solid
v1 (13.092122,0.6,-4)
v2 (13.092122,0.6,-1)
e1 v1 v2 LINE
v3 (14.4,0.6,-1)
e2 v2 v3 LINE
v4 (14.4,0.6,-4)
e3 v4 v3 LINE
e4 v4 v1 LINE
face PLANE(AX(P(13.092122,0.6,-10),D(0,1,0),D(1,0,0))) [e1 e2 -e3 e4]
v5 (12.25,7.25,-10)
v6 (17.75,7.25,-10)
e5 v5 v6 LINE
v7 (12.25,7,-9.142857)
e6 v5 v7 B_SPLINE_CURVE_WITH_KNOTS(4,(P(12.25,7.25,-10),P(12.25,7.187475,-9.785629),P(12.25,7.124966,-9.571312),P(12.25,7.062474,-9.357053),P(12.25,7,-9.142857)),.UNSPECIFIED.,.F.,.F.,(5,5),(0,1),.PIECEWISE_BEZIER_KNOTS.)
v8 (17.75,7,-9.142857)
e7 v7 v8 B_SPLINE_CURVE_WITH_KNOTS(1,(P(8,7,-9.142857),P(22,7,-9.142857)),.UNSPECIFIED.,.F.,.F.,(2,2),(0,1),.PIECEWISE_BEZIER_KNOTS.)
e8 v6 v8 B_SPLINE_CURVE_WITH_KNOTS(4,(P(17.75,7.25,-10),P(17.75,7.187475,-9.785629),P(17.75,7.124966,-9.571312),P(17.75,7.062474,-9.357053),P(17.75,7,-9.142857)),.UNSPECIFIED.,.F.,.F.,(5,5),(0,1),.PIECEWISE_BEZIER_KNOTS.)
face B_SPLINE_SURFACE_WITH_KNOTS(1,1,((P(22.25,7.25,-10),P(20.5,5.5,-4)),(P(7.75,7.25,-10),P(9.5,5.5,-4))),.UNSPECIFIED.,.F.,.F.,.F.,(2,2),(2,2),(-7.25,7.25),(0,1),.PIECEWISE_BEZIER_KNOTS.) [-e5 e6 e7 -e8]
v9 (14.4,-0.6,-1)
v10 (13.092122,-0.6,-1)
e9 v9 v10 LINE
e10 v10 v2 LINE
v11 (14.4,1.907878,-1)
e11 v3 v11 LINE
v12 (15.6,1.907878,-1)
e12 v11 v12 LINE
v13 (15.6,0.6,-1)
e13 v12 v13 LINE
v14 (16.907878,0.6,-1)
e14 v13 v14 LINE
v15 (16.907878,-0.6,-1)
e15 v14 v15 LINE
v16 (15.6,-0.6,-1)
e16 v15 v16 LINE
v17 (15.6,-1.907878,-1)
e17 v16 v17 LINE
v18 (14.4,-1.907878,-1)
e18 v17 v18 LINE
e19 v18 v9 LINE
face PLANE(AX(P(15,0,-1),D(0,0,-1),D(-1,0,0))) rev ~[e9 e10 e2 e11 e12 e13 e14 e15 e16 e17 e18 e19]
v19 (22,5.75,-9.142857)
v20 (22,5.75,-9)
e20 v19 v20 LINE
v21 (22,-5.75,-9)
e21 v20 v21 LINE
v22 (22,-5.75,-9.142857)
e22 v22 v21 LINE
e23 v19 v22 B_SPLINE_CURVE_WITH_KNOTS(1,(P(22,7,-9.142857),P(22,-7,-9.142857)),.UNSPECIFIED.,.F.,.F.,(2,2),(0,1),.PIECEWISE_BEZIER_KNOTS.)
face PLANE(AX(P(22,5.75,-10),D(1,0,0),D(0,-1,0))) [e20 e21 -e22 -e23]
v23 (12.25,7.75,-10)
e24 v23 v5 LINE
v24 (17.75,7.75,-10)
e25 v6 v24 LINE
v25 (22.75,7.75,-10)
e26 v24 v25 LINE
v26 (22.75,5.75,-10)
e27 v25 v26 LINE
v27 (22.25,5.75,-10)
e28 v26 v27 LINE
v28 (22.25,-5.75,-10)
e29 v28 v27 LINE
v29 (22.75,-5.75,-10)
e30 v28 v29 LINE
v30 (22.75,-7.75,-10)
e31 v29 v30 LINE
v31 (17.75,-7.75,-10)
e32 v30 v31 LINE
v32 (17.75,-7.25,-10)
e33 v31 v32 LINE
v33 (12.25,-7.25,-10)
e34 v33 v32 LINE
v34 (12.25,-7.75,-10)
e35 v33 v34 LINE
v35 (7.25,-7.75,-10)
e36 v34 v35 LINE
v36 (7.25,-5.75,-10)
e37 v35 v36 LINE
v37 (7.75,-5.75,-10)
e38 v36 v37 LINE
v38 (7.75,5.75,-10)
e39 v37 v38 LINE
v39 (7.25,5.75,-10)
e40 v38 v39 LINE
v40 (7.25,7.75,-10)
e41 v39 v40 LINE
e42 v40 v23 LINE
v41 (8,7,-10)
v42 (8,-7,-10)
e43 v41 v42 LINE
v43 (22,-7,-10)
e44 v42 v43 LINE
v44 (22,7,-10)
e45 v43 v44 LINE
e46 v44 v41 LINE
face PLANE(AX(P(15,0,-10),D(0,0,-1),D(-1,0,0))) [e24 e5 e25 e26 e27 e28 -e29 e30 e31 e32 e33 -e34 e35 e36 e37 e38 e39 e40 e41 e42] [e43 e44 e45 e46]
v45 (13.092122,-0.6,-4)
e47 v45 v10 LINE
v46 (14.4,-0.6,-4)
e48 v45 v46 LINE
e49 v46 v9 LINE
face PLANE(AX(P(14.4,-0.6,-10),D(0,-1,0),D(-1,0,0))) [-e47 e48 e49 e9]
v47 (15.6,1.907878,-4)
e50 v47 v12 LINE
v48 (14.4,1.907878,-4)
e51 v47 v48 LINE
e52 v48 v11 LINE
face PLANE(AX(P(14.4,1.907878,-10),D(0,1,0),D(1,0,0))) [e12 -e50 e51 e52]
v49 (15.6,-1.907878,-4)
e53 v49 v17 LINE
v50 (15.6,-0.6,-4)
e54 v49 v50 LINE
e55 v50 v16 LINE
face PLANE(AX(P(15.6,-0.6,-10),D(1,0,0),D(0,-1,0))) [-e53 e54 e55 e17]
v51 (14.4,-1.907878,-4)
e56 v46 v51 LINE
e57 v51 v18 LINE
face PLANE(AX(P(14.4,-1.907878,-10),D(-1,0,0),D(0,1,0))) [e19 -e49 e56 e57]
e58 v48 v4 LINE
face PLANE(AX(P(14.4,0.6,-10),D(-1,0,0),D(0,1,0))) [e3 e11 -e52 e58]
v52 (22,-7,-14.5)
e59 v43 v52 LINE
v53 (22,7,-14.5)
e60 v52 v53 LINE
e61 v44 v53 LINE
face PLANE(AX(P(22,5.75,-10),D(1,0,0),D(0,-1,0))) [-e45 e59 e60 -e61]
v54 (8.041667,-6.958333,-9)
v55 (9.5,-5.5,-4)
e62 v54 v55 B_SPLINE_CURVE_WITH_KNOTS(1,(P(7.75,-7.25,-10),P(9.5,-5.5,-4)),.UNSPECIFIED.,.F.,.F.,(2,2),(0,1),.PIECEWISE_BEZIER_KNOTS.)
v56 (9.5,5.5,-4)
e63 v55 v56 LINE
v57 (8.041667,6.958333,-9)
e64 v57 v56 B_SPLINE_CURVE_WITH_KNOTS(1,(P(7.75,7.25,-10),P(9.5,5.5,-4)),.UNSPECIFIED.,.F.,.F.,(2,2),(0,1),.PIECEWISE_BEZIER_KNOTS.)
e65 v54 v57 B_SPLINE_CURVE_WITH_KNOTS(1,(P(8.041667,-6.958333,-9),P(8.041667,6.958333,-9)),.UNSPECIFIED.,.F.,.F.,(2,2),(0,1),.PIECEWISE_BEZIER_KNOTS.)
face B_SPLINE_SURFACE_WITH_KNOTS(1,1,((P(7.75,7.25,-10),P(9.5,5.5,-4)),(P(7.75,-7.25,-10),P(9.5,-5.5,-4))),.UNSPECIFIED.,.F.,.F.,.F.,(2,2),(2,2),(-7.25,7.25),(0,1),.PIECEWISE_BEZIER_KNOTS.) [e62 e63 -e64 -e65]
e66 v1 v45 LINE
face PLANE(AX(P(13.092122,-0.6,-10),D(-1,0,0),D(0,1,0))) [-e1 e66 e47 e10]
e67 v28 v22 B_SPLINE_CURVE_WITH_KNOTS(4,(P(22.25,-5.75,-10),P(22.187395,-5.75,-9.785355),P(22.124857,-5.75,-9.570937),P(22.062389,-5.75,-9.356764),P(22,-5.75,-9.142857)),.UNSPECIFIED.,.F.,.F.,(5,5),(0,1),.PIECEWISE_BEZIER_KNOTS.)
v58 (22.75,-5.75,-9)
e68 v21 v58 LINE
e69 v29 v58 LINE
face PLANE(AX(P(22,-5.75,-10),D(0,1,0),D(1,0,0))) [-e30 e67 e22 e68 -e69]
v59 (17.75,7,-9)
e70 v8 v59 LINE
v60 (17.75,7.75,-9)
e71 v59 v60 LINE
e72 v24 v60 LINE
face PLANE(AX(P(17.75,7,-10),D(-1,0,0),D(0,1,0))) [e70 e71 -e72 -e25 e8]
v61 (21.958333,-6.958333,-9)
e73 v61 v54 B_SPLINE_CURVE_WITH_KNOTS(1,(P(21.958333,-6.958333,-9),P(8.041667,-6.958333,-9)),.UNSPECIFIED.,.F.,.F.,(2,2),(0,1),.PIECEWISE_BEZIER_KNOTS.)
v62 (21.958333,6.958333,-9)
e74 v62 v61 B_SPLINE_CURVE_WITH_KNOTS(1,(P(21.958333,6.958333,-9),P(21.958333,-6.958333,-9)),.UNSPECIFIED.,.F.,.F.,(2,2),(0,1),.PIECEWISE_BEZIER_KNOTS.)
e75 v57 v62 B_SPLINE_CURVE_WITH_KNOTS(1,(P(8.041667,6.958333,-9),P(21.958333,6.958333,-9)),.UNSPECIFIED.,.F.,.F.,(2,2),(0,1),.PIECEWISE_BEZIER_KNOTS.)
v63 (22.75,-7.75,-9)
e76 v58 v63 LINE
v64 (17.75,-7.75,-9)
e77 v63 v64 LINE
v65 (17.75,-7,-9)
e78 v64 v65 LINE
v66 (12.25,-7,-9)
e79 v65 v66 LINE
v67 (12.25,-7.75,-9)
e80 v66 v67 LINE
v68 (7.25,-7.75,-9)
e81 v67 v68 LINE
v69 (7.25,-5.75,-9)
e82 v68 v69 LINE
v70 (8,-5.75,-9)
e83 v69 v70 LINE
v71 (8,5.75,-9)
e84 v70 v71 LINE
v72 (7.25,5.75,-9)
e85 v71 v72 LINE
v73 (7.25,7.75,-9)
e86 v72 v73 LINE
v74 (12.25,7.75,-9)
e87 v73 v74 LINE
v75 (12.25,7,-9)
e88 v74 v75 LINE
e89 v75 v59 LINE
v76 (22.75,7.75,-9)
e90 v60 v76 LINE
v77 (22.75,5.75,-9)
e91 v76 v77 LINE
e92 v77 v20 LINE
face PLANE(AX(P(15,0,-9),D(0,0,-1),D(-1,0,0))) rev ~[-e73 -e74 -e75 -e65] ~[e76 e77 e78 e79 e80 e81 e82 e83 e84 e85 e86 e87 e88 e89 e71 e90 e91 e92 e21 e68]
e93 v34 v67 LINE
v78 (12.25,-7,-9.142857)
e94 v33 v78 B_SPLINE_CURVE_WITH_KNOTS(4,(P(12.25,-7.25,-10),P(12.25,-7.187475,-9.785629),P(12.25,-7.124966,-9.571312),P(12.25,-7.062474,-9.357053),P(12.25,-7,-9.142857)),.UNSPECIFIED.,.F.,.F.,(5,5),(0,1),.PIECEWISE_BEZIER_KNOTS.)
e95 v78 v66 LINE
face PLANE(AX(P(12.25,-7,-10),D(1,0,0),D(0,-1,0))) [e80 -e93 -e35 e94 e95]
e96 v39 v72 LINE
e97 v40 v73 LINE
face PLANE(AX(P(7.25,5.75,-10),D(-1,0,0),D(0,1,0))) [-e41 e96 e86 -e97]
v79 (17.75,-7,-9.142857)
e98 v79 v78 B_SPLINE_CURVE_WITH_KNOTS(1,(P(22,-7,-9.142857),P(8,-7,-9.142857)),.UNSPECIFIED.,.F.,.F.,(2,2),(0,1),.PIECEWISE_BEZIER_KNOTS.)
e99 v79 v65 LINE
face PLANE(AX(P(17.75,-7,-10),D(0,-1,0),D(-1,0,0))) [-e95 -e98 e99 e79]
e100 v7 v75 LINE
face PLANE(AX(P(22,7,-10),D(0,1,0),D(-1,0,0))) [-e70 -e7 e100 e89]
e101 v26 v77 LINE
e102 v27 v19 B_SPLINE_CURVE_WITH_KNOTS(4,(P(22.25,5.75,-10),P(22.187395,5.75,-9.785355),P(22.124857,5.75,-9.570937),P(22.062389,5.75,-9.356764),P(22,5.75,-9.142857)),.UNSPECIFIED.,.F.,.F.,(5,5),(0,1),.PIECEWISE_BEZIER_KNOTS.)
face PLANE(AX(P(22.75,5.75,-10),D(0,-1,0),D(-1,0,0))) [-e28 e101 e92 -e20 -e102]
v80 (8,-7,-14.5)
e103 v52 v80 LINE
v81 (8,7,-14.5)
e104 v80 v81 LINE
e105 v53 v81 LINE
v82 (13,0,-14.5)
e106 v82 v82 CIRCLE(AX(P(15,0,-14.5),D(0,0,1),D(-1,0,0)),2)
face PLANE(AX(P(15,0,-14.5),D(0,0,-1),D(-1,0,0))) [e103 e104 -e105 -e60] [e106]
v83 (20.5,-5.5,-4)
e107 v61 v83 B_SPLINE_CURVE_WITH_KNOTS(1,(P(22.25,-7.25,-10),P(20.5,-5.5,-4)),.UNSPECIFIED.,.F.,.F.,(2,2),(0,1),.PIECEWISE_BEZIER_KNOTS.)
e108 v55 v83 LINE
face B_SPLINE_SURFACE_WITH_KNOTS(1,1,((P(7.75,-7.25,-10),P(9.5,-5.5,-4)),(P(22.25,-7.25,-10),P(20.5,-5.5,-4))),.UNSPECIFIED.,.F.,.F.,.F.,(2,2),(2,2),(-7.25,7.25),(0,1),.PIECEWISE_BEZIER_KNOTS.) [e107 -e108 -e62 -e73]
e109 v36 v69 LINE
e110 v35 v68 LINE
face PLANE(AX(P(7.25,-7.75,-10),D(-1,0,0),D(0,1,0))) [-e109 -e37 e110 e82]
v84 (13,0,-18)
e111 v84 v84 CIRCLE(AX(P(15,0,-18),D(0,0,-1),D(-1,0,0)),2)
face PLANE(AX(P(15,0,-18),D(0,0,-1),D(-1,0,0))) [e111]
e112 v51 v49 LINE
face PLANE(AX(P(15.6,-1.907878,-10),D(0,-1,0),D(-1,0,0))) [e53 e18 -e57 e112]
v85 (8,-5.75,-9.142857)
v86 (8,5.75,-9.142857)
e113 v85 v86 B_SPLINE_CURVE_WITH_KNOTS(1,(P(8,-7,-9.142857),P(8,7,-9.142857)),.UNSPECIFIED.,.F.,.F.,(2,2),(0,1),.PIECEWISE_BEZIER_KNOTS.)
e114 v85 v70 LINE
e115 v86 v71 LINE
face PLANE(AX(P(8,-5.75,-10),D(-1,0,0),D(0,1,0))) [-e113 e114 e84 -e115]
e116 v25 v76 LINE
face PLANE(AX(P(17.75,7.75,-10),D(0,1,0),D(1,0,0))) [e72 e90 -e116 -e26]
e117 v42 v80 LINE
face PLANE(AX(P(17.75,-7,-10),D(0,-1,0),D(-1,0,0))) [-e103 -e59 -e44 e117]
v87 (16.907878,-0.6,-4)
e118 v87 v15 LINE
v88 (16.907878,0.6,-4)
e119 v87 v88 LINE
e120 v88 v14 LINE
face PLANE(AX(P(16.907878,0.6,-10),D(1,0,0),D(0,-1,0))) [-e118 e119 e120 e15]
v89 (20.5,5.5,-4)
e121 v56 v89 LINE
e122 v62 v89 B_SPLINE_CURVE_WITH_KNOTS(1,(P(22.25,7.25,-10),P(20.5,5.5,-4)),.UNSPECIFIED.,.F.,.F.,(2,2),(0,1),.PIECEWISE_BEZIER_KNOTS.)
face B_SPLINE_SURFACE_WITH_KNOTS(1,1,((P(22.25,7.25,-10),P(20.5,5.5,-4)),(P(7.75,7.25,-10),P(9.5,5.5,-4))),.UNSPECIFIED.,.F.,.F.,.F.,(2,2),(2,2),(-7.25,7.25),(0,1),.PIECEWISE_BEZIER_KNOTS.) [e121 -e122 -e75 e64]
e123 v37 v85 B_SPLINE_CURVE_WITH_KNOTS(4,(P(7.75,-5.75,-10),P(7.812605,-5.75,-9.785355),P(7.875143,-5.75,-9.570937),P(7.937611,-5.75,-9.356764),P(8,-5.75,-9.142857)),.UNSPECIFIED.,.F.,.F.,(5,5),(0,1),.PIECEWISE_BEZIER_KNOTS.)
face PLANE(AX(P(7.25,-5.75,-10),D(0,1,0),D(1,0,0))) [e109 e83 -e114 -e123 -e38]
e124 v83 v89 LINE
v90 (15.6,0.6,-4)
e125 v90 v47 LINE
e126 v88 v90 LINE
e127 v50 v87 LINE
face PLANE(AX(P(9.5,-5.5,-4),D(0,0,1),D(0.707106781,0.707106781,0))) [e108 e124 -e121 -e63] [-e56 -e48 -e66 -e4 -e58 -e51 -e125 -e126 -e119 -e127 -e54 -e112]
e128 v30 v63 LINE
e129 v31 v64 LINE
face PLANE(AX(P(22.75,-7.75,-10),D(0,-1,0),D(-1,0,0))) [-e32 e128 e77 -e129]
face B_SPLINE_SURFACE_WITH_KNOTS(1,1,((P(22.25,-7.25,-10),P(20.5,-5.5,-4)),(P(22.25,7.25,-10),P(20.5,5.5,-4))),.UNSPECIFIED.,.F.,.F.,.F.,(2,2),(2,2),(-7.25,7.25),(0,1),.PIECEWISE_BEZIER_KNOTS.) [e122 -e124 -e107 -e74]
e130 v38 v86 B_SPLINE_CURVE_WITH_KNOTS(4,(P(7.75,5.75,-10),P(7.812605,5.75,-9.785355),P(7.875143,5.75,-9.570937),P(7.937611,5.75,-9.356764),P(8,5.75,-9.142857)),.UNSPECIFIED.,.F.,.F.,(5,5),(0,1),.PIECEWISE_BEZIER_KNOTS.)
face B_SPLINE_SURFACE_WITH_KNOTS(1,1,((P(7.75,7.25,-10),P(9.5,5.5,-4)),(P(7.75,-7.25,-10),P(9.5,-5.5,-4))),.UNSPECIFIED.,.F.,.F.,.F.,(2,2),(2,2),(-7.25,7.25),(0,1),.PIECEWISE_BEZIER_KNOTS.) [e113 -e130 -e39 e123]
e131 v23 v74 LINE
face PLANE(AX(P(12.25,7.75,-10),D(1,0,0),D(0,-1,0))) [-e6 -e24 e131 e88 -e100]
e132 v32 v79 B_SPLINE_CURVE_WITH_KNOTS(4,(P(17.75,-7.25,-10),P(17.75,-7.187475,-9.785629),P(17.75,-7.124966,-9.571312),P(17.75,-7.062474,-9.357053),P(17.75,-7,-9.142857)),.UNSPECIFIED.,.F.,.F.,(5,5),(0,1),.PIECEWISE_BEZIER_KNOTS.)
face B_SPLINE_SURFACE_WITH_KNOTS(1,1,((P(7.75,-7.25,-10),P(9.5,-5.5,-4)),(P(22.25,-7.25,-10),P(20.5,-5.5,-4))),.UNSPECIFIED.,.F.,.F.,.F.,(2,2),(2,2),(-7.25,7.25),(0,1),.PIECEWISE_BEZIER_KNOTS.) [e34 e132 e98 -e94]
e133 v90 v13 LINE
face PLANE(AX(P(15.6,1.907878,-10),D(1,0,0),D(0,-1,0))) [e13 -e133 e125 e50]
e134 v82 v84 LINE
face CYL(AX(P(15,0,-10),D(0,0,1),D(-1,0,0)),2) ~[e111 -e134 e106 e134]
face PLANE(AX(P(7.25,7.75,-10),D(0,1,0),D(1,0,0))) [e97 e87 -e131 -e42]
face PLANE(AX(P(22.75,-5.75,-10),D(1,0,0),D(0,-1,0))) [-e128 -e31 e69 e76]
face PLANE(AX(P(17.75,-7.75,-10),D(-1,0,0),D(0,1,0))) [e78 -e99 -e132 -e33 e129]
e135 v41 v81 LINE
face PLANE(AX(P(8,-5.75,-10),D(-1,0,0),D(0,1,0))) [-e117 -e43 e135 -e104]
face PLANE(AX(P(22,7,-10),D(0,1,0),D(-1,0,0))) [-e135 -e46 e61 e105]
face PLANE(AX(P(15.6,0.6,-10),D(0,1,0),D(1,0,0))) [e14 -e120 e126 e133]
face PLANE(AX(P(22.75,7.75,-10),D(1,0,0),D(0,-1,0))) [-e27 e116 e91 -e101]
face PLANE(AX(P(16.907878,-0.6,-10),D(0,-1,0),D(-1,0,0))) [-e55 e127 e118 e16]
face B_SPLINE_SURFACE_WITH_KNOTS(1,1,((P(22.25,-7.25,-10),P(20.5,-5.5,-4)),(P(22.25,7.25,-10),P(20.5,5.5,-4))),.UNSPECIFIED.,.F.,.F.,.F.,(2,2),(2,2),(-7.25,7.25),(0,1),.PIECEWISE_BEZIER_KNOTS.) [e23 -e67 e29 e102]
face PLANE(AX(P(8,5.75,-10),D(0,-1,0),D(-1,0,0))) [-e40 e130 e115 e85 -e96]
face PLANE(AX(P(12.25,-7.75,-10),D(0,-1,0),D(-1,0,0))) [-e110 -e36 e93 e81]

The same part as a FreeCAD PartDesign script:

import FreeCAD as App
import Part
import Sketcher


def add_polygon(sketch, points):
    """Adds a closed chain of lines whose ends are joined by coincident constraints."""
    first, n = sketch.GeometryCount, len(points)
    for a, b in zip(points, points[1:] + points[:1]):
        sketch.addGeometry(Part.LineSegment(App.Vector(*a, 0), App.Vector(*b, 0)), False)
    for i in range(n):
        sketch.addConstraint(Sketcher.Constraint("Coincident", first + i, 2, first + (i + 1) % n, 1))

doc = App.newDocument("Part")
body = doc.addObject("PartDesign::Body", "Body")

sketch1 = doc.addObject("Sketcher::SketchObject", "Sketch")
body.addObject(sketch1)
sketch1.AttachmentSupport = (doc.XY_Plane, [""])
sketch1.MapMode = "FlatFace"
add_polygon(sketch1, [(7, 7), (7, -7), (-7, -7), (-7, 7)])
sketch1.addConstraint(Sketcher.Constraint("Vertical", 0))
sketch1.addConstraint(Sketcher.Constraint("Horizontal", 1))
sketch1.addConstraint(Sketcher.Constraint("Vertical", 2))
sketch1.addConstraint(Sketcher.Constraint("Horizontal", 3))
sketch1.addConstraint(Sketcher.Constraint("Symmetric", 0, 2, 2, 2, -1, 1))
sketch1.addConstraint(Sketcher.Constraint("Equal", 3, 0))
sketch1.addConstraint(Sketcher.Constraint("DistanceX", 1, 2, 1, 1, 14.0))
pad1 = doc.addObject("PartDesign::Pad", "Pad")
body.addObject(pad1)
pad1.Profile = sketch1
pad1.Length = 4.5
pad1.Reversed = True

sketch2 = doc.addObject("Sketcher::SketchObject", "Sketch001")
body.addObject(sketch2)
sketch2.AttachmentSupport = (doc.XY_Plane, [""])
sketch2.MapMode = "FlatFace"
sketch2.addGeometry(Part.Circle(App.Vector(0, 0, 0), App.Vector(0, 0, 1), 2), False)
sketch2.addConstraint(Sketcher.Constraint("Coincident", 0, 3, -1, 1))
sketch2.addConstraint(Sketcher.Constraint("Diameter", 0, 4.0))
pad2 = doc.addObject("PartDesign::Pad", "Pad001")
body.addObject(pad2)
pad2.Profile = sketch2
pad2.Length = 8
pad2.Reversed = True

sketch3 = doc.addObject("Sketcher::SketchObject", "Sketch002")
body.addObject(sketch3)
sketch3.AttachmentSupport = (doc.XY_Plane, [""])
sketch3.MapMode = "FlatFace"
add_polygon(sketch3, [(-7.75, 7.75), (-7.75, 5.75), (-7, 5.75), (-7, -5.75), (-7.75, -5.75), (-7.75, -7.75), (-2.75, -7.75), (-2.75, -7), (2.75, -7), (2.75, -7.75), (7.75, -7.75), (7.75, -5.75), (7, -5.75), (7, 5.75), (7.75, 5.75), (7.75, 7.75), (2.75, 7.75), (2.75, 7), (-2.75, 7), (-2.75, 7.75)])
sketch3.addConstraint(Sketcher.Constraint("Vertical", 0))
sketch3.addConstraint(Sketcher.Constraint("Horizontal", 1))
sketch3.addConstraint(Sketcher.Constraint("Vertical", 2))
sketch3.addConstraint(Sketcher.Constraint("Horizontal", 3))
sketch3.addConstraint(Sketcher.Constraint("Vertical", 4))
sketch3.addConstraint(Sketcher.Constraint("Horizontal", 5))
sketch3.addConstraint(Sketcher.Constraint("Vertical", 6))
sketch3.addConstraint(Sketcher.Constraint("Horizontal", 7))
sketch3.addConstraint(Sketcher.Constraint("Vertical", 8))
sketch3.addConstraint(Sketcher.Constraint("Horizontal", 9))
sketch3.addConstraint(Sketcher.Constraint("Vertical", 10))
sketch3.addConstraint(Sketcher.Constraint("Horizontal", 11))
sketch3.addConstraint(Sketcher.Constraint("Vertical", 12))
sketch3.addConstraint(Sketcher.Constraint("Horizontal", 13))
sketch3.addConstraint(Sketcher.Constraint("Vertical", 14))
sketch3.addConstraint(Sketcher.Constraint("Horizontal", 15))
sketch3.addConstraint(Sketcher.Constraint("Vertical", 16))
sketch3.addConstraint(Sketcher.Constraint("Horizontal", 17))
sketch3.addConstraint(Sketcher.Constraint("Vertical", 18))
sketch3.addConstraint(Sketcher.Constraint("Horizontal", 19))
sketch3.addConstraint(Sketcher.Constraint("Symmetric", 0, 2, 10, 2, -1, 1))
sketch3.addConstraint(Sketcher.Constraint("Symmetric", 2, 2, 12, 2, -1, 1))
sketch3.addConstraint(Sketcher.Constraint("Symmetric", 4, 2, 14, 2, -1, 1))
sketch3.addConstraint(Sketcher.Constraint("Symmetric", 6, 2, 16, 2, -1, 1))
sketch3.addConstraint(Sketcher.Constraint("Symmetric", 8, 2, 18, 2, -1, 1))
sketch3.addConstraint(Sketcher.Constraint("Symmetric", 5, 2, 8, 2, -2))
sketch3.addConstraint(Sketcher.Constraint("Symmetric", 3, 2, 10, 2, -2))
sketch3.addConstraint(Sketcher.Constraint("Equal", 13, 6))
sketch3.addConstraint(Sketcher.Constraint("DistanceX", 5, 1, 5, 2, 5.0))
sketch3.addConstraint(Sketcher.Constraint("DistanceY", 0, 2, 0, 1, 2.0))
sketch3.addConstraint(Sketcher.Constraint("DistanceX", 7, 1, 7, 2, 5.5))
sketch3.addConstraint(Sketcher.Constraint("DistanceY", 2, 2, 2, 1, 11.5))
sketch3.addConstraint(Sketcher.Constraint("DistanceX", 1, 2, -1, 1, 7.0))
pad3 = doc.addObject("PartDesign::Pad", "Pad002")
body.addObject(pad3)
pad3.Profile = sketch3
pad3.Length = 1

sketch4 = doc.addObject("Sketcher::SketchObject", "Sketch003")
body.addObject(sketch4)
sketch4.AttachmentSupport = (doc.XY_Plane, [""])
sketch4.MapMode = "FlatFace"
add_polygon(sketch4, [(-7.25, 7.25), (-7.25, -7.25), (7.25, -7.25), (7.25, 7.25)])
sketch4.addConstraint(Sketcher.Constraint("Vertical", 0))
sketch4.addConstraint(Sketcher.Constraint("Horizontal", 1))
sketch4.addConstraint(Sketcher.Constraint("Vertical", 2))
sketch4.addConstraint(Sketcher.Constraint("Horizontal", 3))
sketch4.addConstraint(Sketcher.Constraint("Symmetric", 0, 2, 2, 2, -1, 1))
sketch4.addConstraint(Sketcher.Constraint("Equal", 3, 0))
sketch4.addConstraint(Sketcher.Constraint("DistanceX", 1, 1, 1, 2, 14.5))

sketch5 = doc.addObject("Sketcher::SketchObject", "Sketch004")
body.addObject(sketch5)
sketch5.AttachmentSupport = (doc.XY_Plane, [""])
sketch5.MapMode = "FlatFace"
sketch5.AttachmentOffset = App.Placement(App.Vector(0, 0, 6), App.Rotation())
add_polygon(sketch5, [(-5.5, 5.5), (-5.5, -5.5), (5.5, -5.5), (5.5, 5.5)])
sketch5.addConstraint(Sketcher.Constraint("Vertical", 0))
sketch5.addConstraint(Sketcher.Constraint("Horizontal", 1))
sketch5.addConstraint(Sketcher.Constraint("Vertical", 2))
sketch5.addConstraint(Sketcher.Constraint("Horizontal", 3))
sketch5.addConstraint(Sketcher.Constraint("Symmetric", 0, 2, 2, 2, -1, 1))
sketch5.addConstraint(Sketcher.Constraint("Equal", 3, 0))
sketch5.addConstraint(Sketcher.Constraint("DistanceX", 1, 1, 1, 2, 11.0))

additiveloft = doc.addObject("PartDesign::AdditiveLoft", "AdditiveLoft")
body.addObject(additiveloft)
additiveloft.Profile = sketch4
additiveloft.Sections = [sketch5]

sketch6 = doc.addObject("Sketcher::SketchObject", "Sketch005")
body.addObject(sketch6)
sketch6.AttachmentSupport = (doc.XY_Plane, [""])
sketch6.MapMode = "FlatFace"
add_polygon(sketch6, [(0.6, 1.907878), (-0.6, 1.907878), (-0.6, 0.6), (-1.907878, 0.6), (-1.907878, -0.6), (-0.6, -0.6), (-0.6, -1.907878), (0.6, -1.907878), (0.6, -0.6), (1.907878, -0.6), (1.907878, 0.6), (0.6, 0.6)])
sketch6.addConstraint(Sketcher.Constraint("Horizontal", 0))
sketch6.addConstraint(Sketcher.Constraint("Vertical", 1))
sketch6.addConstraint(Sketcher.Constraint("Horizontal", 2))
sketch6.addConstraint(Sketcher.Constraint("Vertical", 3))
sketch6.addConstraint(Sketcher.Constraint("Horizontal", 4))
sketch6.addConstraint(Sketcher.Constraint("Vertical", 5))
sketch6.addConstraint(Sketcher.Constraint("Horizontal", 6))
sketch6.addConstraint(Sketcher.Constraint("Vertical", 7))
sketch6.addConstraint(Sketcher.Constraint("Horizontal", 8))
sketch6.addConstraint(Sketcher.Constraint("Vertical", 9))
sketch6.addConstraint(Sketcher.Constraint("Horizontal", 10))
sketch6.addConstraint(Sketcher.Constraint("Vertical", 11))
sketch6.addConstraint(Sketcher.Constraint("Symmetric", 0, 2, 6, 2, -1, 1))
sketch6.addConstraint(Sketcher.Constraint("Symmetric", 2, 2, 8, 2, -1, 1))
sketch6.addConstraint(Sketcher.Constraint("Symmetric", 4, 2, 10, 2, -1, 1))
sketch6.addConstraint(Sketcher.Constraint("Symmetric", 4, 2, 7, 2, -2))
sketch6.addConstraint(Sketcher.Constraint("Equal", 10, 1))
sketch6.addConstraint(Sketcher.Constraint("Equal", 6, 3))
sketch6.addConstraint(Sketcher.Constraint("DistanceX", 0, 2, 0, 1, 1.2))
sketch6.addConstraint(Sketcher.Constraint("DistanceX", 2, 2, 2, 1, 1.307878))
pad4 = doc.addObject("PartDesign::Pad", "Pad003")
body.addObject(pad4)
pad4.Profile = sketch6
pad4.Length = 9

sketch7 = doc.addObject("Sketcher::SketchObject", "Sketch006")
body.addObject(sketch7)
sketch7.AttachmentSupport = (doc.XY_Plane, [""])
sketch7.MapMode = "FlatFace"
sketch7.AttachmentOffset = App.Placement(App.Vector(0, 0, 5), App.Rotation())
add_polygon(sketch7, [(-3.75, 3), (-3.75, -3), (3.75, -3), (3.75, 3)])
sketch7.addConstraint(Sketcher.Constraint("Vertical", 0))
sketch7.addConstraint(Sketcher.Constraint("Horizontal", 1))
sketch7.addConstraint(Sketcher.Constraint("Vertical", 2))
sketch7.addConstraint(Sketcher.Constraint("Horizontal", 3))
sketch7.addConstraint(Sketcher.Constraint("Symmetric", 0, 2, 2, 2, -1, 1))
sketch7.addConstraint(Sketcher.Constraint("DistanceY", 0, 2, 0, 1, 6.0))
sketch7.addConstraint(Sketcher.Constraint("DistanceX", 1, 1, 1, 2, 7.5))
pad5 = doc.addObject("PartDesign::Pad", "Pad004")
body.addObject(pad5)
pad5.Profile = sketch7
pad5.Length = 1
body2 = doc.addObject("PartDesign::Body", "Body001")
doc.recompute()

body.Placement = App.Placement(App.Vector(15, 0, -10), App.Rotation(App.Vector(0, 0, 1), 0))
boolean = doc.addObject("PartDesign::Boolean", "Boolean")
body2.addObject(boolean)
boolean.Type = "Fuse"
boolean.addObjects([body])

doc.recompute()
